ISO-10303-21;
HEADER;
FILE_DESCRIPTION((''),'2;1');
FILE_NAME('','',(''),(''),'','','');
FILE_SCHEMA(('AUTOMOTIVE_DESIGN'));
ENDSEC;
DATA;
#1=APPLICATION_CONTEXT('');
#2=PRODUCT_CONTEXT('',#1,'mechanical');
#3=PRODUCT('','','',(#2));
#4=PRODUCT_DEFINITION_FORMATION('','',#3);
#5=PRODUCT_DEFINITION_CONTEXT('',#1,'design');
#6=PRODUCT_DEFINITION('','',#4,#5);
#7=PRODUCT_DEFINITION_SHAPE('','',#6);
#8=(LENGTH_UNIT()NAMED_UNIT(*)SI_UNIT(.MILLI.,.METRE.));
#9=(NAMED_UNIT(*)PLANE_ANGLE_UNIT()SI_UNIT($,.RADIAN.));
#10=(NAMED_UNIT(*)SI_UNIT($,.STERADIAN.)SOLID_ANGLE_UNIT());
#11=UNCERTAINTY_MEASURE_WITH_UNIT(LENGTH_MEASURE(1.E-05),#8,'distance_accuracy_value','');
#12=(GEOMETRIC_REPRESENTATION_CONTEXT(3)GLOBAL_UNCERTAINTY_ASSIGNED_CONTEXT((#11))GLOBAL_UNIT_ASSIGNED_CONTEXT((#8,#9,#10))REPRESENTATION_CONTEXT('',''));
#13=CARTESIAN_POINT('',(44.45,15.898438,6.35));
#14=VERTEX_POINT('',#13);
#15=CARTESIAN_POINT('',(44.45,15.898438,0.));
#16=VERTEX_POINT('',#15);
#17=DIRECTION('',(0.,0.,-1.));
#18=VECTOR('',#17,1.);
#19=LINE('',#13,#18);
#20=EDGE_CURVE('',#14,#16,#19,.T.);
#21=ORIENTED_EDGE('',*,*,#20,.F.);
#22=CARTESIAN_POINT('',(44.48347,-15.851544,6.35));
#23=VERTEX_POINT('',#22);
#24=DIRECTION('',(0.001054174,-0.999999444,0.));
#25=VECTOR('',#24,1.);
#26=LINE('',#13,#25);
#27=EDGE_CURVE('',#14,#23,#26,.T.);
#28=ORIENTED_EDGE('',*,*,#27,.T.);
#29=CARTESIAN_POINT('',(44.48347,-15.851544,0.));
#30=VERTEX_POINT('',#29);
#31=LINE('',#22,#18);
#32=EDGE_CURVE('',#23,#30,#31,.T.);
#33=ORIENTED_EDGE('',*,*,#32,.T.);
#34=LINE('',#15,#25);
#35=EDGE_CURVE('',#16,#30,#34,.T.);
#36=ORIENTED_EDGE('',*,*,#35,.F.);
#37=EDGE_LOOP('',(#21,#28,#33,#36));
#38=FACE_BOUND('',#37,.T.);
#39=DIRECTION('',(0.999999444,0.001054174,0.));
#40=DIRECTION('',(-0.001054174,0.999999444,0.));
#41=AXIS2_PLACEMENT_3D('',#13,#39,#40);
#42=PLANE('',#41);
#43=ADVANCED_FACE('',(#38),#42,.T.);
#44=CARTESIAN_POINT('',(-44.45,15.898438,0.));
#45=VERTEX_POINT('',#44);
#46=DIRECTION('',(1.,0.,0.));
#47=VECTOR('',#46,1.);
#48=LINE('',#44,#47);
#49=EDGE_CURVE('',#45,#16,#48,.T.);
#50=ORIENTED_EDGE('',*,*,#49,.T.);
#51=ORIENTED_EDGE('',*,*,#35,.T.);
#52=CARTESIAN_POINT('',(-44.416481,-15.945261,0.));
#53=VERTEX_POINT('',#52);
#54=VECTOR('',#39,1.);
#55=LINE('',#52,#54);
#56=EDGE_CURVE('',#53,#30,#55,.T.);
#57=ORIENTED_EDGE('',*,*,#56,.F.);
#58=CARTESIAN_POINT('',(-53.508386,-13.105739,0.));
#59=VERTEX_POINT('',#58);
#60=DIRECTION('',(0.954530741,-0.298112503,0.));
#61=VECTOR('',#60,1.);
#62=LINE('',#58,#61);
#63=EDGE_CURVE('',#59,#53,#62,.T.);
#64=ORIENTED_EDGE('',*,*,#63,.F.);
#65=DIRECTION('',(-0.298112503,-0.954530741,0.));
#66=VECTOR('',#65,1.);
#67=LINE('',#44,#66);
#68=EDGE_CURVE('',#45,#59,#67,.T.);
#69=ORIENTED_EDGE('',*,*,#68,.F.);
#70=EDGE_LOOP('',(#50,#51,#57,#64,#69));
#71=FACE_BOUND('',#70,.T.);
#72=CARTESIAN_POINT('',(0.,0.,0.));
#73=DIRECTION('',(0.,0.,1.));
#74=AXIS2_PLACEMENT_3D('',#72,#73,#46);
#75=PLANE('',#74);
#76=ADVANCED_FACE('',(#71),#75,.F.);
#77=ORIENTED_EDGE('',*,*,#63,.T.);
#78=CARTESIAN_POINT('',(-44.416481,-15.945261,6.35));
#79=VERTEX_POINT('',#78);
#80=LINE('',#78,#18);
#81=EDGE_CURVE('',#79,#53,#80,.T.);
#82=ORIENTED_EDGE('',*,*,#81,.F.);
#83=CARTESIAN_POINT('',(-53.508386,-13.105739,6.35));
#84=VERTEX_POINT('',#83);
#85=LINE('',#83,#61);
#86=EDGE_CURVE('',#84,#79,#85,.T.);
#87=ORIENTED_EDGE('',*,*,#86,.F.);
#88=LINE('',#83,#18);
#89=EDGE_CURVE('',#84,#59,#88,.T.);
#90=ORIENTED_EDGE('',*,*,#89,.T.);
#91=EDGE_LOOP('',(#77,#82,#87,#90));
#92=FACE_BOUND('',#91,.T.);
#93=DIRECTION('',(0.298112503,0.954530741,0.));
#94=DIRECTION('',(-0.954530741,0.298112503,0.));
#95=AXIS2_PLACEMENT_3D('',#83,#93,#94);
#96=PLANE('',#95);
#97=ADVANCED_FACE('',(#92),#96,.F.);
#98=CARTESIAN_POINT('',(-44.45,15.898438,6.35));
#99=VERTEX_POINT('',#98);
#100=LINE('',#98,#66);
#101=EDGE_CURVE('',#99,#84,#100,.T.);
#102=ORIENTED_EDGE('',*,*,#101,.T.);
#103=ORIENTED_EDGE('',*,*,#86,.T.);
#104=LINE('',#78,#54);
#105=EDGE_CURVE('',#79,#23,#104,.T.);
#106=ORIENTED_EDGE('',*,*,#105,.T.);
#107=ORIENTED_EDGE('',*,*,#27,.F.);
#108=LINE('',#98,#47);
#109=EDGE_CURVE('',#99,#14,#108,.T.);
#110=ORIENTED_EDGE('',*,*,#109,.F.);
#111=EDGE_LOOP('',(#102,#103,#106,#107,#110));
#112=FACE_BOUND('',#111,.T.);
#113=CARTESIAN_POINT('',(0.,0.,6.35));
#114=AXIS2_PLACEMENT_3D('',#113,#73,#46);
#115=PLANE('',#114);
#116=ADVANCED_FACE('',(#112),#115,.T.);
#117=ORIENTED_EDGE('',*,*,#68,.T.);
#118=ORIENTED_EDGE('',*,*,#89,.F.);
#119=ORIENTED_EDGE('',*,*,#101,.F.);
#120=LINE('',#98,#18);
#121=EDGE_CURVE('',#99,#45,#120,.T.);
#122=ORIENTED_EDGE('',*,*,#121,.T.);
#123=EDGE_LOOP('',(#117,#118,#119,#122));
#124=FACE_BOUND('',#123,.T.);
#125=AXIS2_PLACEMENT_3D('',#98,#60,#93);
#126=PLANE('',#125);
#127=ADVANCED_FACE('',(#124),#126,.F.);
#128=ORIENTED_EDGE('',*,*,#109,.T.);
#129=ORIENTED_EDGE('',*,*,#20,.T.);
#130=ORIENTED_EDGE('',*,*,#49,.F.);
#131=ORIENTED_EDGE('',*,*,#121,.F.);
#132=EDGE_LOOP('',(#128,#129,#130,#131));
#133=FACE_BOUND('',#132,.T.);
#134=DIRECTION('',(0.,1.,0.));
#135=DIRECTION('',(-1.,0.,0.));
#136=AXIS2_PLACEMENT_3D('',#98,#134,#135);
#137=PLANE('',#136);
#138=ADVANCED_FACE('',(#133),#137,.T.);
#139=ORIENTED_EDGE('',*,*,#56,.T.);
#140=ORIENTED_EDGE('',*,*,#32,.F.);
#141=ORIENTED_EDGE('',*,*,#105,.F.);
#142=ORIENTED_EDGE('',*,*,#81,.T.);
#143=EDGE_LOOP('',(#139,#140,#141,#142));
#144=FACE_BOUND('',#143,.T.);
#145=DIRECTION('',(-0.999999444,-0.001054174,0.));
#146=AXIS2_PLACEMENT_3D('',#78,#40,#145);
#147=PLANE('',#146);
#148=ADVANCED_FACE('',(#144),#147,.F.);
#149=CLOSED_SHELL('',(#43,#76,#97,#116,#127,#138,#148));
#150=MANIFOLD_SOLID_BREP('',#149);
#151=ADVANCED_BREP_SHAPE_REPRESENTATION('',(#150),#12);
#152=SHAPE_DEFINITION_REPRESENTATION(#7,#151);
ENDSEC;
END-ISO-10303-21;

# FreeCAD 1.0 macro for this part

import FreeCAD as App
import Part
import Sketcher

V = App.Vector
Q = App.Units.Quantity

doc = App.newDocument("Part")
body = doc.addObject("PartDesign::Body", "Body")

# Sketch on XY plane
sketch1 = body.newObject("Sketcher::SketchObject", "Sketch")
sketch1.AttachmentSupport = (doc.getObject("XY_Plane"), [""])
sketch1.MapMode = "FlatFace"
sketch1.addGeometry([
    Part.LineSegment(V(44, 16, 0), V(-44, 16, 0)),  # 0
    Part.LineSegment(V(-44, 16, 0), V(-54, -13, 0)),  # 1
    Part.LineSegment(V(-54, -13, 0), V(-44, -16, 0)),  # 2
    Part.LineSegment(V(-44, -16, 0), V(44, -16, 0)),  # 3
    Part.LineSegment(V(44, -16, 0), V(44, 16, 0)),  # 4
], False)
sketch1.addConstraint([
    Sketcher.Constraint("Coincident", 0, 2, 1, 1),
    Sketcher.Constraint("Coincident", 1, 2, 2, 1),
    Sketcher.Constraint("Coincident", 2, 2, 3, 1),
    Sketcher.Constraint("Coincident", 3, 2, 4, 1),
    Sketcher.Constraint("Coincident", 4, 2, 0, 1),
    Sketcher.Constraint("Horizontal", 0),
    Sketcher.Constraint("Perpendicular", 1, 2),
    Sketcher.Constraint("Perpendicular", 3, 4),
    Sketcher.Constraint("DistanceX", 0, 2, 0, 1, Q("3.5 in")),
    Sketcher.Constraint("Distance", 3, Q("3.5 in")),
    Sketcher.Constraint("Distance", 4, Q("1.25 in")),
    Sketcher.Constraint("DistanceX", 0, 2, -1, 1, Q("1.75 in")),
    Sketcher.Constraint("Distance", 2, Q("0.375 in")),
    Sketcher.Constraint("DistanceY", 2, 2, 0, 2, Q("31.843698 mm")),
    Sketcher.Constraint("DistanceY", 1, 2, -1, 1, Q("13.105739 mm")),
])
pad1 = body.newObject("PartDesign::Pad", "Pad")
pad1.Profile = sketch1
pad1.Length = Q("0.25 in")

doc.recompute()
